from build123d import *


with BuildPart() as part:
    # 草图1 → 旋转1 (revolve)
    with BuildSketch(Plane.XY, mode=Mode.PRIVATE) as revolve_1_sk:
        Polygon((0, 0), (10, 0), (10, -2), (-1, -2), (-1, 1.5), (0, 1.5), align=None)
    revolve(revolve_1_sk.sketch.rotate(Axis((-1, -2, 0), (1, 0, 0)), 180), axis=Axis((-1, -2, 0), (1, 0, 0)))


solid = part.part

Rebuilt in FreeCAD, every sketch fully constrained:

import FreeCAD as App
import Part
import Sketcher

V = App.Vector
Q = App.Units.Quantity

doc = App.newDocument("Part")
body = doc.addObject("PartDesign::Body", "Body")

sketch1 = body.newObject("Sketcher::SketchObject", "Sketch")
sketch1.AttachmentSupport = (doc.getObject("XY_Plane"), [""])
sketch1.MapMode = "FlatFace"
sketch1.addGeometry([
    Part.LineSegment(V(10, 0, 0), V(0, 0, 0)),
    Part.LineSegment(V(0, 0, 0), V(0, 1.5, 0)),
    Part.LineSegment(V(0, 1.5, 0), V(-1, 1.5, 0)),
    Part.LineSegment(V(-1, 1.5, 0), V(-1, -2, 0)),
    Part.LineSegment(V(-1, -2, 0), V(10, -2, 0)),
    Part.LineSegment(V(10, -2, 0), V(10, 0, 0)),
], False)
sketch1.addGeometry(Part.LineSegment(V(-1, -2, 0), V(10, -2, 0)), True)
sketch1.addConstraint([
    Sketcher.Constraint("Coincident", 0, 2, 1, 1),
    Sketcher.Constraint("Coincident", 1, 2, 2, 1),
    Sketcher.Constraint("Coincident", 2, 2, 3, 1),
    Sketcher.Constraint("Coincident", 3, 2, 4, 1),
    Sketcher.Constraint("Coincident", 4, 2, 5, 1),
    Sketcher.Constraint("Coincident", 5, 2, 0, 1),
    Sketcher.Constraint("Horizontal", 0),
    Sketcher.Constraint("Vertical", 1),
    Sketcher.Constraint("Horizontal", 2),
    Sketcher.Constraint("Vertical", 3),
    Sketcher.Constraint("Horizontal", 4),
    Sketcher.Constraint("Vertical", 5),
    Sketcher.Constraint("Horizontal", 6),
    Sketcher.Constraint("Coincident", 0, 2, -1, 1),
    Sketcher.Constraint("Coincident", 6, 1, 3, 2),
    Sketcher.Constraint("Vertical", 5, 2, 6, 2),
    Sketcher.Constraint("DistanceX", 0, 2, 0, 1, Q("10 mm")),
    Sketcher.Constraint("DistanceX", 2, 2, 2, 1, Q("1 mm")),
    Sketcher.Constraint("DistanceY", 5, 1, 5, 2, Q("2 mm")),
    Sketcher.Constraint("DistanceY", 1, 1, 1, 2, Q("1.5 mm")),
])
revolution = body.newObject("PartDesign::Revolution", "Revolution")
revolution.Profile = sketch1
revolution.ReferenceAxis = (sketch1, ["Axis0"])
revolution.Angle = 360

doc.recompute()
